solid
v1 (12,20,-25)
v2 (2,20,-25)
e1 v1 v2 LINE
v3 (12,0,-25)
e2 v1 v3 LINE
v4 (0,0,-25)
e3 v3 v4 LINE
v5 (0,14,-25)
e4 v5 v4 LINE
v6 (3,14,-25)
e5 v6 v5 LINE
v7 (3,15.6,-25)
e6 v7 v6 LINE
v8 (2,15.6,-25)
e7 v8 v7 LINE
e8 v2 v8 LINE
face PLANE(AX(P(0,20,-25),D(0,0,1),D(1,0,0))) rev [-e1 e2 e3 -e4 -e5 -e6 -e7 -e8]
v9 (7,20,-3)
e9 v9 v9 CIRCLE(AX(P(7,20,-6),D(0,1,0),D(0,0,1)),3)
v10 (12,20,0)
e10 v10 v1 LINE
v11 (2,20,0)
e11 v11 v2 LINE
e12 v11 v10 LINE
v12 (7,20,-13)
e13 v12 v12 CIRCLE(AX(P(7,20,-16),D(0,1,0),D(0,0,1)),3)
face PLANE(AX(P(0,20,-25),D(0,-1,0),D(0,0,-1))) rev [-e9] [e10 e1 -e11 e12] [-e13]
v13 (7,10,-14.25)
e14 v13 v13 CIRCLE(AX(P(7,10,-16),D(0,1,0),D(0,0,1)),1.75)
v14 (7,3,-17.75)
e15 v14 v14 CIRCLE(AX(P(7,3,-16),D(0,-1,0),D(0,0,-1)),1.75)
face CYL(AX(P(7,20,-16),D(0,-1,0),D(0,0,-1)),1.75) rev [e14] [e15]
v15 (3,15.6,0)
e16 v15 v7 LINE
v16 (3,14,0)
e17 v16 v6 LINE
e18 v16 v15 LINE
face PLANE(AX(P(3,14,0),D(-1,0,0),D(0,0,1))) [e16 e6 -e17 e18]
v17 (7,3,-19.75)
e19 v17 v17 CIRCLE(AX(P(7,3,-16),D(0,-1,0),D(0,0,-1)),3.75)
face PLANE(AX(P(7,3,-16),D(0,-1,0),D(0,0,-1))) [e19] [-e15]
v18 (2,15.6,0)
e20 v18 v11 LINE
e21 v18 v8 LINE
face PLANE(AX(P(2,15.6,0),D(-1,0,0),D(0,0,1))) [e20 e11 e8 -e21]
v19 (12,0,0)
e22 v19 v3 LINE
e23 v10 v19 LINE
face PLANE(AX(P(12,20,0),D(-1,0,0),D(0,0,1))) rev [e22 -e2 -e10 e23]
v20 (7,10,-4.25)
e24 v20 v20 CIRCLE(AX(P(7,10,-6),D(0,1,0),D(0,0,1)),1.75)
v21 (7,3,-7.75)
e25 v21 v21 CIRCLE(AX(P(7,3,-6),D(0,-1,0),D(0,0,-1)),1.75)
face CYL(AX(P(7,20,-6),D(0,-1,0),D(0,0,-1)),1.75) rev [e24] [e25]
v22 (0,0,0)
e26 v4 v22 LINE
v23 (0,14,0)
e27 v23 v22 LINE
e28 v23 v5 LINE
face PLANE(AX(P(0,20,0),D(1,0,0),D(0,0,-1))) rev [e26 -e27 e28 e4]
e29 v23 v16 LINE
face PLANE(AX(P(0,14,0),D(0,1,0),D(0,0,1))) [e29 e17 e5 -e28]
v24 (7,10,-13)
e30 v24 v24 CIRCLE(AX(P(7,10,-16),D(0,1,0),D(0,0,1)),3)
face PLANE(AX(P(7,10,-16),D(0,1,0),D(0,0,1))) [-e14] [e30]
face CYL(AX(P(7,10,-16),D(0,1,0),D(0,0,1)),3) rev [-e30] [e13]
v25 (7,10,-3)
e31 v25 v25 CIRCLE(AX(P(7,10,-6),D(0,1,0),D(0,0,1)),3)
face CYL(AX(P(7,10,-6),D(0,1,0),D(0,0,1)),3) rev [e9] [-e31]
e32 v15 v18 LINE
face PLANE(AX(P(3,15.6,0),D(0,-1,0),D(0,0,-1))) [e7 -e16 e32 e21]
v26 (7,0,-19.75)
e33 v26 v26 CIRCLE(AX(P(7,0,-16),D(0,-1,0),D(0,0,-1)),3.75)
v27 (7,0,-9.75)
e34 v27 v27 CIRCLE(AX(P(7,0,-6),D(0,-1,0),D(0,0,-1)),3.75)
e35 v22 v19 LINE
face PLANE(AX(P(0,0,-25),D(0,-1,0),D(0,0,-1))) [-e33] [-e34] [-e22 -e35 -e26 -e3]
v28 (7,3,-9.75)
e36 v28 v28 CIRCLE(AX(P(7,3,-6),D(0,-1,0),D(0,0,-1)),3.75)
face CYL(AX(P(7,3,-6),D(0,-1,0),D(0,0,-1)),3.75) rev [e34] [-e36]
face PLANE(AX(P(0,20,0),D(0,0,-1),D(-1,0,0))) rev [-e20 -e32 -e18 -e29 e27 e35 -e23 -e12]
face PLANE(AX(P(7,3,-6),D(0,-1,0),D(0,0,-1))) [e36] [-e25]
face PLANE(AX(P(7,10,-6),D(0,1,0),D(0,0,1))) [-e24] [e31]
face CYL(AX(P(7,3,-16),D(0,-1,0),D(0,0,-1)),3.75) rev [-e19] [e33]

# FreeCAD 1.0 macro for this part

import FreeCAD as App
import Part
import Sketcher

doc = App.newDocument("Part")
body = doc.addObject("PartDesign::Body", "Body")

# Sketch on XZ plane
sketch1 = doc.addObject("Sketcher::SketchObject", "Sketch")
body.addObject(sketch1)
sketch1.AttachmentSupport = (doc.XZ_Plane, [""])
sketch1.MapMode = "FlatFace"
sketch1.addGeometry([
    Part.LineSegment(App.Vector(0, -25, 0), App.Vector(0, 0, 0)),  # 0
    Part.LineSegment(App.Vector(0, 0, 0), App.Vector(12, 0, 0)),  # 1
    Part.LineSegment(App.Vector(12, 0, 0), App.Vector(12, -25, 0)),  # 2
    Part.LineSegment(App.Vector(12, -25, 0), App.Vector(0, -25, 0)),  # 3
    Part.Circle(App.Vector(7, -6, 0), App.Vector(0, 0, 1), 1.8),  # 4
    Part.Circle(App.Vector(7, -16, 0), App.Vector(0, 0, 1), 1.8),  # 5
], False)
sketch1.addConstraint([
    Sketcher.Constraint("Coincident", 0, 2, 1, 1),
    Sketcher.Constraint("Coincident", 1, 2, 2, 1),
    Sketcher.Constraint("Coincident", 2, 2, 3, 1),
    Sketcher.Constraint("Coincident", 3, 2, 0, 1),
    Sketcher.Constraint("Vertical", 0),
    Sketcher.Constraint("Horizontal", 1),
    Sketcher.Constraint("Vertical", 2),
    Sketcher.Constraint("Horizontal", 3),
    Sketcher.Constraint("Coincident", 0, 2, -1, 1),
    Sketcher.Constraint("Equal", 4, 5),
    Sketcher.Constraint("Vertical", 4, 3, 5, 3),
    Sketcher.Constraint("Diameter", 4, 3.5),
    Sketcher.Constraint("DistanceX", 1, 1, 1, 2, 12.0),
    Sketcher.Constraint("DistanceY", 0, 1, 0, 2, 25.0),
    Sketcher.Constraint("DistanceX", -1, 1, 4, 3, 7.0),
    Sketcher.Constraint("DistanceY", 4, 3, -1, 1, 6.0),
    Sketcher.Constraint("DistanceY", 5, 3, -1, 1, 16.0),
])
pad1 = doc.addObject("PartDesign::Pad", "Pad")
body.addObject(pad1)
pad1.Profile = sketch1
pad1.Length = 20
pad1.Reversed = True

# Sketch on XY plane
sketch2 = doc.addObject("Sketcher::SketchObject", "Sketch001")
body.addObject(sketch2)
sketch2.AttachmentSupport = (doc.XY_Plane, [""])
sketch2.MapMode = "FlatFace"
sketch2.addGeometry([
    Part.LineSegment(App.Vector(-54.7, 14, 0), App.Vector(3, 14, 0)),  # 0
    Part.LineSegment(App.Vector(3, 14, 0), App.Vector(3, 15.6, 0)),  # 1
    Part.LineSegment(App.Vector(3, 15.6, 0), App.Vector(2, 15.6, 0)),  # 2
    Part.LineSegment(App.Vector(2, 15.6, 0), App.Vector(2, 74.7, 0)),  # 3
    Part.LineSegment(App.Vector(2, 74.7, 0), App.Vector(-78, 149.4, 0)),  # 4
    Part.LineSegment(App.Vector(-78, 149.4, 0), App.Vector(-134.7, 88.7, 0)),  # 5
    Part.LineSegment(App.Vector(-134.7, 88.7, 0), App.Vector(-54.7, 14, 0)),  # 6
], False)
sketch2.addConstraint([
    Sketcher.Constraint("Coincident", 0, 2, 1, 1),
    Sketcher.Constraint("Coincident", 1, 2, 2, 1),
    Sketcher.Constraint("Coincident", 2, 2, 3, 1),
    Sketcher.Constraint("Coincident", 3, 2, 4, 1),
    Sketcher.Constraint("Coincident", 4, 2, 5, 1),
    Sketcher.Constraint("Coincident", 5, 2, 6, 1),
    Sketcher.Constraint("Coincident", 6, 2, 0, 1),
    Sketcher.Constraint("Horizontal", 0),
    Sketcher.Constraint("Vertical", 1),
    Sketcher.Constraint("Horizontal", 2),
    Sketcher.Constraint("Vertical", 3),
    Sketcher.Constraint("Perpendicular", 4, 5),
    Sketcher.Constraint("Perpendicular", 5, 6),
    Sketcher.Constraint("Equal", 4, 6),
    Sketcher.Constraint("DistanceX", 2, 2, 2, 1, 1.0),
    Sketcher.Constraint("DistanceY", 1, 1, 1, 2, 1.6),
    Sketcher.Constraint("DistanceX", -1, 1, 0, 2, 3.0),
    Sketcher.Constraint("DistanceY", -1, 1, 0, 2, 14.0),
    Sketcher.Constraint("DistanceX", 0, 1, 0, 2, 57.72136),
    Sketcher.Constraint("DistanceY", 3, 1, 3, 2, 59.12136),
    Sketcher.Constraint("Distance", 4, 109.442719),
])
pocket1 = doc.addObject("PartDesign::Pocket", "Pocket")
body.addObject(pocket1)
pocket1.Profile = sketch2
pocket1.Type = "ThroughAll"

# Sketch on XZ plane
sketch3 = doc.addObject("Sketcher::SketchObject", "Sketch002")
body.addObject(sketch3)
sketch3.AttachmentSupport = (doc.XZ_Plane, [""])
sketch3.MapMode = "FlatFace"
sketch3.AttachmentOffset = App.Placement(App.Vector(0, 0, -20), App.Rotation())
sketch3.addGeometry([
    Part.Circle(App.Vector(7, -16, 0), App.Vector(0, 0, 1), 3),
    Part.Circle(App.Vector(7, -6, 0), App.Vector(0, 0, 1), 3),
], False)
sketch3.addConstraint([
    Sketcher.Constraint("Equal", 0, 1),
    Sketcher.Constraint("Vertical", 0, 3, 1, 3),
    Sketcher.Constraint("Diameter", 0, 6.0),
    Sketcher.Constraint("DistanceX", -1, 1, 0, 3, 7.0),
    Sketcher.Constraint("DistanceY", 0, 3, -1, 1, 16.0),
    Sketcher.Constraint("DistanceY", 1, 3, -1, 1, 6.0),
])
pocket2 = doc.addObject("PartDesign::Pocket", "Pocket001")
body.addObject(pocket2)
pocket2.Profile = sketch3
pocket2.Length = 10
pocket2.Reversed = True

# Sketch on XZ plane
sketch4 = doc.addObject("Sketcher::SketchObject", "Sketch003")
body.addObject(sketch4)
sketch4.AttachmentSupport = (doc.XZ_Plane, [""])
sketch4.MapMode = "FlatFace"
sketch4.addGeometry([
    Part.Circle(App.Vector(7, -16, 0), App.Vector(0, 0, 1), 3.8),
    Part.Circle(App.Vector(7, -6, 0), App.Vector(0, 0, 1), 3.8),
], False)
sketch4.addConstraint([
    Sketcher.Constraint("Equal", 0, 1),
    Sketcher.Constraint("Vertical", 0, 3, 1, 3),
    Sketcher.Constraint("Diameter", 0, 7.5),
    Sketcher.Constraint("DistanceX", -1, 1, 0, 3, 7.0),
    Sketcher.Constraint("DistanceY", 0, 3, -1, 1, 16.0),
    Sketcher.Constraint("DistanceY", 1, 3, -1, 1, 6.0),
])
pocket3 = doc.addObject("PartDesign::Pocket", "Pocket002")
body.addObject(pocket3)
pocket3.Profile = sketch4
pocket3.Length = 3

doc.recompute()
